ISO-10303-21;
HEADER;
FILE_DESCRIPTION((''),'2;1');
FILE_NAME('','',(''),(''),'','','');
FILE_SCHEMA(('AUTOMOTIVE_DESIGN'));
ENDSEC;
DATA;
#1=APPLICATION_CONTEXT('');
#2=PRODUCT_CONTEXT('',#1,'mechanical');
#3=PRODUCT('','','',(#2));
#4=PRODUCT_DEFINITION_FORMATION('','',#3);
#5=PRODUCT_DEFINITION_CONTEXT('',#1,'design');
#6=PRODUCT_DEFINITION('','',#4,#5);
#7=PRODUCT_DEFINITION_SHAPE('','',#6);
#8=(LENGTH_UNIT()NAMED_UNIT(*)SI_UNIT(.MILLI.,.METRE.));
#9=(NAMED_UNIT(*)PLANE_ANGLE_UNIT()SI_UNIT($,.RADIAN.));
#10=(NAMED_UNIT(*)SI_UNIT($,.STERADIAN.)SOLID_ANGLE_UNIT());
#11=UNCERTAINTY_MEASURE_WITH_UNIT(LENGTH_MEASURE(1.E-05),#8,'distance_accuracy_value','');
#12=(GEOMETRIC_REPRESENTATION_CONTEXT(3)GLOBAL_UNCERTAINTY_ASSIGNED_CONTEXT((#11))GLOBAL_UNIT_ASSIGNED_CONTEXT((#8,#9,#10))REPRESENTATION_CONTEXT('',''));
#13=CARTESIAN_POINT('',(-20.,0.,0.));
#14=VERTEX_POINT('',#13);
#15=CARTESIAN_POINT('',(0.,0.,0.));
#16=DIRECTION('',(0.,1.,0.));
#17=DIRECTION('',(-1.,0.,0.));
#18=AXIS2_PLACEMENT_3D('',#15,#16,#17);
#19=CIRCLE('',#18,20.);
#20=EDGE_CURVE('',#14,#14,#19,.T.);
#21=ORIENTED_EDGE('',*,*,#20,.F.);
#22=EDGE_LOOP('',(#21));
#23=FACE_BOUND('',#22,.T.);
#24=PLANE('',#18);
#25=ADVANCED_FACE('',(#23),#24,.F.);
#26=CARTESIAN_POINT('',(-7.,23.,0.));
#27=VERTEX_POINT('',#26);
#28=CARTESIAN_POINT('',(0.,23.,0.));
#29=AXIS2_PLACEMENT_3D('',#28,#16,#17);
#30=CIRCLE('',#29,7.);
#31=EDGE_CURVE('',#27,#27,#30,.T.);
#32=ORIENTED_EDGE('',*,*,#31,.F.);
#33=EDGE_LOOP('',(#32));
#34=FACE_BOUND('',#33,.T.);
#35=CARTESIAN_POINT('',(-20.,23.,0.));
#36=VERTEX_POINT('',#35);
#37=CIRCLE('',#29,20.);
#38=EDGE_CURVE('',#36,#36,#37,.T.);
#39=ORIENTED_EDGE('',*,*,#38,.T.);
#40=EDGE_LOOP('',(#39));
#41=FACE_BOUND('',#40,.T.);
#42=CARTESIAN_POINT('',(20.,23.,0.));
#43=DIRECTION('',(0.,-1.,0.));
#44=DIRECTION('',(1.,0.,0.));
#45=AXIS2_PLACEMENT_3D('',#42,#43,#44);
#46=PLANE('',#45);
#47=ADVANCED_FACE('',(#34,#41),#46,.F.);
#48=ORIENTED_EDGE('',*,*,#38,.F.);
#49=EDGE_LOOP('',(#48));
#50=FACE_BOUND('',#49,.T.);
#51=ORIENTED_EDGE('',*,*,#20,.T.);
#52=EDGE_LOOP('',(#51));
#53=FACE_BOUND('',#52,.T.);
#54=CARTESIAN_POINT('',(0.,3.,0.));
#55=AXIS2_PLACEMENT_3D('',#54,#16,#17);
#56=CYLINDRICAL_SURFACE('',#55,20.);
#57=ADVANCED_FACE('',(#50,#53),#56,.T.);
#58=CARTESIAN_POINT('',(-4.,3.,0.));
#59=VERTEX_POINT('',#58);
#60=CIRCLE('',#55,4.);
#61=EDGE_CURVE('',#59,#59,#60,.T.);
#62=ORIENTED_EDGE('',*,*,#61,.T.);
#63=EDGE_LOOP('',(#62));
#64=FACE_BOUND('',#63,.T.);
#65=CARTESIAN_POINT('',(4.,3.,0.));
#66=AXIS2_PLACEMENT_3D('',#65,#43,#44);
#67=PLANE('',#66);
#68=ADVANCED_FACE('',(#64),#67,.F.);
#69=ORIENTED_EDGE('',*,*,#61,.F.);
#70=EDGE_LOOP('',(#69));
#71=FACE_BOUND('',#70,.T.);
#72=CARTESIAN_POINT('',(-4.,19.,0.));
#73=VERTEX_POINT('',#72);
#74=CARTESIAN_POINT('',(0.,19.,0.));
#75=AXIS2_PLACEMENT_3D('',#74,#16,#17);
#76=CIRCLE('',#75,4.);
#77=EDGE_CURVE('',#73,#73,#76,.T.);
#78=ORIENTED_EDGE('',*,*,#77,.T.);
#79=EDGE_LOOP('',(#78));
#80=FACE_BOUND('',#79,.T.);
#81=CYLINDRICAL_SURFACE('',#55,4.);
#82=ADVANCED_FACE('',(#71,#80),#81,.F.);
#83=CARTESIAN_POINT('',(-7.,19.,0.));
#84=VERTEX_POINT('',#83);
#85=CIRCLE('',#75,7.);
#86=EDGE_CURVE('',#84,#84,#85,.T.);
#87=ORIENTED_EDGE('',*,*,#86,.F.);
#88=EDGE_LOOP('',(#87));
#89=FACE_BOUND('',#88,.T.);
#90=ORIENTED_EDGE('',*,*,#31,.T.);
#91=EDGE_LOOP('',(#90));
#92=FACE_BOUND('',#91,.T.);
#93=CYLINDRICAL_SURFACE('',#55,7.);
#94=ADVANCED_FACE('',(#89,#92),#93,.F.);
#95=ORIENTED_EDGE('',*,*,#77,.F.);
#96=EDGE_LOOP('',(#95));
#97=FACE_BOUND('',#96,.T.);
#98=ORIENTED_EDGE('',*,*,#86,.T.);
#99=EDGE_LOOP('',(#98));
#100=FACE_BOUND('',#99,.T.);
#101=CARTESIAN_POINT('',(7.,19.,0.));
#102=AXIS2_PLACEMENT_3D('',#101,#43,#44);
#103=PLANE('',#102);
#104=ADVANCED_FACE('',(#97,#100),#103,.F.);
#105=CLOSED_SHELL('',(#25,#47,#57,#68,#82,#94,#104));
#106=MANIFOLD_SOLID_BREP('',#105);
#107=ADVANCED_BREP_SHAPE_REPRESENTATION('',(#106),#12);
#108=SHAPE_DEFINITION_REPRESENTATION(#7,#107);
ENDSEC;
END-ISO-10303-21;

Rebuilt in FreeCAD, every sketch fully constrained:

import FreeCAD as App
import Part
import Sketcher

V = App.Vector
Q = App.Units.Quantity

doc = App.newDocument("Part")
body = doc.addObject("PartDesign::Body", "Body")

sketch1 = body.newObject("Sketcher::SketchObject", "Sketch")
sketch1.AttachmentSupport = (doc.getObject("XY_Plane"), [""])
sketch1.MapMode = "FlatFace"
sketch1.addGeometry([
    Part.LineSegment(V(0, 3, 0), V(0, 0, 0)),
    Part.LineSegment(V(0, 0, 0), V(20, 0, 0)),
    Part.LineSegment(V(20, 0, 0), V(20, 23, 0)),
    Part.LineSegment(V(20, 23, 0), V(7, 23, 0)),
    Part.LineSegment(V(7, 23, 0), V(7, 19, 0)),
    Part.LineSegment(V(7, 19, 0), V(4, 19, 0)),
    Part.LineSegment(V(4, 19, 0), V(4, 3, 0)),
    Part.LineSegment(V(4, 3, 0), V(0, 3, 0)),
], False)
sketch1.addConstraint([
    Sketcher.Constraint("Coincident", 0, 2, 1, 1),
    Sketcher.Constraint("Coincident", 1, 2, 2, 1),
    Sketcher.Constraint("Coincident", 2, 2, 3, 1),
    Sketcher.Constraint("Coincident", 3, 2, 4, 1),
    Sketcher.Constraint("Coincident", 4, 2, 5, 1),
    Sketcher.Constraint("Coincident", 5, 2, 6, 1),
    Sketcher.Constraint("Coincident", 6, 2, 7, 1),
    Sketcher.Constraint("Coincident", 7, 2, 0, 1),
    Sketcher.Constraint("Vertical", 0),
    Sketcher.Constraint("Horizontal", 1),
    Sketcher.Constraint("Vertical", 2),
    Sketcher.Constraint("Horizontal", 3),
    Sketcher.Constraint("Vertical", 4),
    Sketcher.Constraint("Horizontal", 5),
    Sketcher.Constraint("Vertical", 6),
    Sketcher.Constraint("Horizontal", 7),
    Sketcher.Constraint("Coincident", 0, 2, -1, 1),
    Sketcher.Constraint("Equal", 5, 0),
    Sketcher.Constraint("Equal", 7, 4),
    Sketcher.Constraint("DistanceX", 1, 1, 1, 2, Q("20 mm")),
    Sketcher.Constraint("DistanceX", 3, 2, 3, 1, Q("13 mm")),
    Sketcher.Constraint("DistanceX", 5, 2, 5, 1, Q("3 mm")),
    Sketcher.Constraint("DistanceY", 2, 1, 2, 2, Q("23 mm")),
])
revolution = body.newObject("PartDesign::Revolution", "Revolution")
revolution.Profile = sketch1
revolution.ReferenceAxis = (sketch1, ["V_Axis"])
revolution.Angle = 360

doc.recompute()
